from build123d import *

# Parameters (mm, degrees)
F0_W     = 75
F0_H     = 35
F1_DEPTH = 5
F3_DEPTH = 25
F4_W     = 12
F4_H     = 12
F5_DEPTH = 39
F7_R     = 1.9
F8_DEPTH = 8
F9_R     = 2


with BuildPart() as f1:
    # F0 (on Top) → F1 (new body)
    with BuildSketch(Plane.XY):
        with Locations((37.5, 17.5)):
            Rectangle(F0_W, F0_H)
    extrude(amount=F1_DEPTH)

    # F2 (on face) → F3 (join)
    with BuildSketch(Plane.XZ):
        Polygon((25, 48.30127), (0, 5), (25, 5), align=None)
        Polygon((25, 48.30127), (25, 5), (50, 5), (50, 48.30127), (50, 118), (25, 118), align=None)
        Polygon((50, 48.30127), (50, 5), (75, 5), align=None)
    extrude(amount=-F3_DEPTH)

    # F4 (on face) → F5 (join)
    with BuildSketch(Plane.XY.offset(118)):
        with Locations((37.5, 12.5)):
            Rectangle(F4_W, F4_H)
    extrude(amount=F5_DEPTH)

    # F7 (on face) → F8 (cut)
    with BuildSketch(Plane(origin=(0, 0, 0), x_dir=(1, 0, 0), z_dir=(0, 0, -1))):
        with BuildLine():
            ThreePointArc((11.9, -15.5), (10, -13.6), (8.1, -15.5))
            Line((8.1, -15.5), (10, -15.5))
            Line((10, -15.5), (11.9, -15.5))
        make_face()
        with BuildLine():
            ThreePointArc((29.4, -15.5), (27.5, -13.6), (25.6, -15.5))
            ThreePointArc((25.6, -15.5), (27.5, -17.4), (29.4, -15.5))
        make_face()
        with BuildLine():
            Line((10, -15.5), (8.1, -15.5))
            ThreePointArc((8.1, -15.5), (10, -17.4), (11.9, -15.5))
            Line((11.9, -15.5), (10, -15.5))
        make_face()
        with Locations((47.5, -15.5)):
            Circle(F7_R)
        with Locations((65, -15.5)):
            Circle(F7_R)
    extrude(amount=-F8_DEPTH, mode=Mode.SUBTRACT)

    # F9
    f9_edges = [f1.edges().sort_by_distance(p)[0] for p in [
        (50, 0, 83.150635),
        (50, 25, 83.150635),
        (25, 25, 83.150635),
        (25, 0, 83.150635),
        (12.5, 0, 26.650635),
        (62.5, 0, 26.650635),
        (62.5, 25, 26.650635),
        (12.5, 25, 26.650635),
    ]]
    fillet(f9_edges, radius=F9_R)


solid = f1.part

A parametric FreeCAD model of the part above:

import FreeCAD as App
import Part
import Sketcher
from FreeCAD import Vector
Q = App.Units.Quantity


def edges_at(feature, points):
    """Names of the edges that pass closest to the given points."""
    edges = feature.Shape.Edges
    near = lambda p: min(range(len(edges)), key=lambda i: edges[i].distToShape(Part.Vertex(*p))[0])
    return sorted({f"Edge{near(p) + 1}" for p in points})

doc = App.newDocument("Part")
body = doc.addObject("PartDesign::Body", "Body")

# Sketch on XY plane
sketch1 = body.newObject("Sketcher::SketchObject", "Sketch")
sketch1.AttachmentSupport = (doc.getObject("XY_Plane"), [""])
sketch1.MapMode = "FlatFace"
sketch1.addGeometry([
    Part.LineSegment(Vector(0, 35, 0), Vector(0, 0, 0)),
    Part.LineSegment(Vector(0, 0, 0), Vector(75, 0, 0)),
    Part.LineSegment(Vector(75, 0, 0), Vector(75, 35, 0)),
    Part.LineSegment(Vector(75, 35, 0), Vector(0, 35, 0)),
], False)
sketch1.addConstraint([
    Sketcher.Constraint("Coincident", 0, 2, 1, 1),
    Sketcher.Constraint("Coincident", 1, 2, 2, 1),
    Sketcher.Constraint("Coincident", 2, 2, 3, 1),
    Sketcher.Constraint("Coincident", 3, 2, 0, 1),
    Sketcher.Constraint("Vertical", 0),
    Sketcher.Constraint("Horizontal", 1),
    Sketcher.Constraint("Vertical", 2),
    Sketcher.Constraint("Horizontal", 3),
    Sketcher.Constraint("Coincident", 0, 2, -1, 1),
    Sketcher.Constraint("DistanceX", 1, 1, 1, 2, 75.0),
    Sketcher.Constraint("DistanceY", 0, 2, 0, 1, 35.0),
])
pad1 = body.newObject("PartDesign::Pad", "Pad")
pad1.Profile = sketch1
pad1.Length = 5

# Sketch on XZ plane
sketch2 = body.newObject("Sketcher::SketchObject", "Sketch001")
sketch2.AttachmentSupport = (doc.getObject("XZ_Plane"), [""])
sketch2.MapMode = "FlatFace"
sketch2.addGeometry([
    Part.LineSegment(Vector(25, 48, 0), Vector(0, 5, 0)),  # 0
    Part.LineSegment(Vector(0, 5, 0), Vector(75, 5, 0)),  # 1
    Part.LineSegment(Vector(75, 5, 0), Vector(50, 48, 0)),  # 2
    Part.LineSegment(Vector(50, 48, 0), Vector(50, 118, 0)),  # 3
    Part.LineSegment(Vector(50, 118, 0), Vector(25, 118, 0)),  # 4
    Part.LineSegment(Vector(25, 118, 0), Vector(25, 48, 0)),  # 5
], False)
sketch2.addConstraint([
    Sketcher.Constraint("Coincident", 0, 2, 1, 1),
    Sketcher.Constraint("Coincident", 1, 2, 2, 1),
    Sketcher.Constraint("Coincident", 2, 2, 3, 1),
    Sketcher.Constraint("Coincident", 3, 2, 4, 1),
    Sketcher.Constraint("Coincident", 4, 2, 5, 1),
    Sketcher.Constraint("Coincident", 5, 2, 0, 1),
    Sketcher.Constraint("Horizontal", 1),
    Sketcher.Constraint("Vertical", 3),
    Sketcher.Constraint("Horizontal", 4),
    Sketcher.Constraint("Vertical", 5),
    Sketcher.Constraint("PointOnObject", 0, 2, -2),
    Sketcher.Constraint("Horizontal", 2, 2, 5, 2),
    Sketcher.Constraint("Equal", 0, 2),
    Sketcher.Constraint("DistanceX", 1, 1, 1, 2, 75.0),
    Sketcher.Constraint("DistanceX", 4, 2, 4, 1, 25.0),
    Sketcher.Constraint("Angle", 0, Q("-120 deg")),
    Sketcher.Constraint("DistanceY", -1, 1, 0, 2, 5.0),
    Sketcher.Constraint("DistanceY", -1, 1, 3, 2, 118.0),
])
pad2 = body.newObject("PartDesign::Pad", "Pad001")
pad2.Profile = sketch2
pad2.Length = 25
pad2.Reversed = True

# Sketch on XY plane
sketch3 = body.newObject("Sketcher::SketchObject", "Sketch002")
sketch3.AttachmentSupport = (doc.getObject("XY_Plane"), [""])
sketch3.MapMode = "FlatFace"
sketch3.AttachmentOffset = App.Placement(Vector(0, 0, 118), App.Rotation())
sketch3.addGeometry([
    Part.LineSegment(Vector(32, 18, 0), Vector(32, 6, 0)),
    Part.LineSegment(Vector(32, 6, 0), Vector(44, 6, 0)),
    Part.LineSegment(Vector(44, 6, 0), Vector(44, 18, 0)),
    Part.LineSegment(Vector(44, 18, 0), Vector(32, 18, 0)),
], False)
sketch3.addConstraint([
    Sketcher.Constraint("Coincident", 0, 2, 1, 1),
    Sketcher.Constraint("Coincident", 1, 2, 2, 1),
    Sketcher.Constraint("Coincident", 2, 2, 3, 1),
    Sketcher.Constraint("Coincident", 3, 2, 0, 1),
    Sketcher.Constraint("Vertical", 0),
    Sketcher.Constraint("Horizontal", 1),
    Sketcher.Constraint("Vertical", 2),
    Sketcher.Constraint("Horizontal", 3),
    Sketcher.Constraint("Equal", 3, 0),
    Sketcher.Constraint("DistanceX", 1, 1, 1, 2, 12.0),
    Sketcher.Constraint("DistanceX", -1, 1, 0, 2, 31.5),
    Sketcher.Constraint("DistanceY", -1, 1, 0, 2, 6.5),
])
pad3 = body.newObject("PartDesign::Pad", "Pad002")
pad3.Profile = sketch3
pad3.Length = 39

# Sketch on XY plane
sketch4 = body.newObject("Sketcher::SketchObject", "Sketch003")
sketch4.AttachmentSupport = (doc.getObject("XY_Plane"), [""])
sketch4.MapMode = "FlatFace"
sketch4.addGeometry([
    Part.Circle(Vector(10, 15.5, 0), Vector(0, 0, 1), 1.9),
    Part.Circle(Vector(27.5, 15.5, 0), Vector(0, 0, 1), 1.9),
    Part.Circle(Vector(47.5, 15.5, 0), Vector(0, 0, 1), 1.9),
    Part.Circle(Vector(65, 15.5, 0), Vector(0, 0, 1), 1.9),
], False)
sketch4.addConstraint([
    Sketcher.Constraint("Equal", 0, 1),
    Sketcher.Constraint("Equal", 1, 2),
    Sketcher.Constraint("Equal", 2, 3),
    Sketcher.Constraint("Horizontal", 0, 3, 1, 3),
    Sketcher.Constraint("Horizontal", 1, 3, 2, 3),
    Sketcher.Constraint("Horizontal", 2, 3, 3, 3),
    Sketcher.Constraint("Diameter", 0, 3.8),
    Sketcher.Constraint("DistanceX", -1, 1, 0, 3, 10.0),
    Sketcher.Constraint("DistanceX", -1, 1, 3, 3, 65.0),
    Sketcher.Constraint("DistanceX", 1, 3, 2, 3, 20.0),
    Sketcher.Constraint("DistanceY", -1, 1, 0, 3, 15.5),
    Sketcher.Constraint("DistanceX", -1, 1, 1, 3, 27.5),
])
pocket1 = body.newObject("PartDesign::Pocket", "Pocket")
pocket1.Profile = sketch4
pocket1.Length = 8
pocket1.Reversed = True
doc.recompute()

fillet = body.newObject("PartDesign::Fillet", "Fillet")
fillet.Base = (pocket1, edges_at(pocket1, [
    (50, 0, 83.151),
    (50, 25, 83.151),
    (25, 25, 83.151),
    (25, 0, 83.151),
    (12.5, 0, 26.651),
    (62.5, 0, 26.651),
    (62.5, 25, 26.651),
    (12.5, 25, 26.651),
]))
fillet.Radius = 2

doc.recompute()
